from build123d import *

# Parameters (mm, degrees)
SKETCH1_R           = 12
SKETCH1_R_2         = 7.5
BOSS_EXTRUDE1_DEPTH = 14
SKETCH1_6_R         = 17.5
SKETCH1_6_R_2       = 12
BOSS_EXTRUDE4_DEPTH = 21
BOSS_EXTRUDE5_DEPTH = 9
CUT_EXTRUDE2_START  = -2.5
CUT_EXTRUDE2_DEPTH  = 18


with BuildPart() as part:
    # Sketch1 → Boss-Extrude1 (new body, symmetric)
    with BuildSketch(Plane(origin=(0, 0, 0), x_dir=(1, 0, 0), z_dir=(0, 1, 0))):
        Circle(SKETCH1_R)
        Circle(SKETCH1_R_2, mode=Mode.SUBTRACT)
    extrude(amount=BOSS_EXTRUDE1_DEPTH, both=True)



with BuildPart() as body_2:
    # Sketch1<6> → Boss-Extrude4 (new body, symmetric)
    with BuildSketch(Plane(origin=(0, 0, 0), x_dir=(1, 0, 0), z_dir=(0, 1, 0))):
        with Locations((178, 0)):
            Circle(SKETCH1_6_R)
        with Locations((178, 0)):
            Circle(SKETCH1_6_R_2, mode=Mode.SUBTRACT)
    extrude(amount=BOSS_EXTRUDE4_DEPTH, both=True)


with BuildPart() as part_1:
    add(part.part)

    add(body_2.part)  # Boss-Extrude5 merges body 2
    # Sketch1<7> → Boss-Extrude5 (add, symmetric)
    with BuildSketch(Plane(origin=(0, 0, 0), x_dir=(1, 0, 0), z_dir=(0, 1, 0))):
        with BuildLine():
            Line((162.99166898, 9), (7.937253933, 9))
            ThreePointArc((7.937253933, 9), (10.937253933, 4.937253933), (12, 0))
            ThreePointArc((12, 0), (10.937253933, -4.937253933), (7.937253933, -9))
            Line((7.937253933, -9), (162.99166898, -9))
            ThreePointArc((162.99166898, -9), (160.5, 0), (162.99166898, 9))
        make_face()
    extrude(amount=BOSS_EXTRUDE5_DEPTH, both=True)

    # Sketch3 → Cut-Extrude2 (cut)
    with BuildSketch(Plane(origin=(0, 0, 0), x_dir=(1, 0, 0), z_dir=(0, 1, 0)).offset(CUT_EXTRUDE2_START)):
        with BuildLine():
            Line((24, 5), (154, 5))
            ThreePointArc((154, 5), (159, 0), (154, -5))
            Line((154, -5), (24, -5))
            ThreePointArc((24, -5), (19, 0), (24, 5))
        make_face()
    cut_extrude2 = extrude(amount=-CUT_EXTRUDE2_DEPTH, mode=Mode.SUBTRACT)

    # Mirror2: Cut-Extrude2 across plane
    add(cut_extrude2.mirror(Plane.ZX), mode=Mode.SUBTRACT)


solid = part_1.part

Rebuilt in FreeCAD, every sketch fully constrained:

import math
import FreeCAD as App
import Part
import Sketcher
from FreeCAD import Vector

doc = App.newDocument("Part")
params = doc.addObject("Spreadsheet::Sheet", "Params")
for row, (alias, value) in enumerate([
    ("sketch1_diameter", "24 mm"),
    ("sketch1_diameter2", "15 mm"),
    ("pad1_length", "28 mm"),
    ("sketch2_diameter", "35 mm"),
    ("sketch2_diameter2", "24 mm"),
    ("pad2_length", "42 mm"),
    ("sketch3_radius", "12 mm"),
    ("sketch3_radius2", "17.5 mm"),
    ("pad3_length", "18 mm"),
    ("sketch4_radius", "5 mm"),
    ("sketch4_width", "130 mm"),
    ("pocket1_length", "18 mm"),
], start=1):
    params.set(f"A{row}", alias)
    params.set(f"B{row}", "=" + value)
    params.setAlias(f"B{row}", alias)

body = doc.addObject("PartDesign::Body", "Body")

sketch1 = body.newObject("Sketcher::SketchObject", "Sketch")
sketch1.AttachmentSupport = (doc.getObject("XZ_Plane"), [""])
sketch1.MapMode = "FlatFace"
sketch1.addGeometry(Part.Circle(Vector(0, 0, 0), Vector(0, 0, 1), 12), False)
sketch1.addGeometry(Part.Circle(Vector(0, 0, 0), Vector(0, 0, 1), 8), False)
sketch1.addConstraint(Sketcher.Constraint("Coincident", 0, 3, -1, 1))
sketch1.addConstraint(Sketcher.Constraint("Coincident", 1, 3, -1, 1))
sketch1.addConstraint(Sketcher.Constraint("Diameter", 0, 24.0))
sketch1.addConstraint(Sketcher.Constraint("Diameter", 1, 15.0))
sketch1.setExpression("Constraints[2]", "Params.sketch1_diameter")
sketch1.setExpression("Constraints[3]", "Params.sketch1_diameter2")
pad1 = body.newObject("PartDesign::Pad", "Pad")
pad1.Profile = sketch1
pad1.setExpression("Length", "Params.pad1_length")
pad1.Midplane = True
body2 = doc.addObject("PartDesign::Body", "Body001")

sketch2 = body2.newObject("Sketcher::SketchObject", "Sketch001")
sketch2.AttachmentSupport = (doc.getObject("XZ_Plane001"), [""])
sketch2.MapMode = "FlatFace"
sketch2.addGeometry(Part.Circle(Vector(178, 0, 0), Vector(0, 0, 1), 18), False)
sketch2.addGeometry(Part.Circle(Vector(178, 0, 0), Vector(0, 0, 1), 12), False)
sketch2.addConstraint(Sketcher.Constraint("Coincident", 1, 3, 0, 3))
sketch2.addConstraint(Sketcher.Constraint("PointOnObject", 0, 3, -1))
sketch2.addConstraint(Sketcher.Constraint("Diameter", 0, 35.0))
sketch2.addConstraint(Sketcher.Constraint("Diameter", 1, 24.0))
sketch2.addConstraint(Sketcher.Constraint("DistanceX", -1, 1, 0, 3, 178.0))
sketch2.setExpression("Constraints[2]", "Params.sketch2_diameter")
sketch2.setExpression("Constraints[3]", "Params.sketch2_diameter2")
pad2 = body2.newObject("PartDesign::Pad", "Pad001")
pad2.Profile = sketch2
pad2.setExpression("Length", "Params.pad2_length")
pad2.Midplane = True
body.AllowCompound = True
doc.recompute()

boolean = body.newObject("PartDesign::Boolean", "Boolean")
boolean.Type = "Fuse"
boolean.addObjects([body2])

sketch3 = body.newObject("Sketcher::SketchObject", "Sketch002")
sketch3.AttachmentSupport = (doc.getObject("XZ_Plane"), [""])
sketch3.MapMode = "FlatFace"
sketch3.addGeometry(Part.LineSegment(Vector(163, -9, 0), Vector(8, -9, 0)), False)
sketch3.addGeometry(Part.ArcOfCircle(Part.Circle(Vector(0, 0, 0), Vector(0, 0, 1), 12), math.radians(-49), math.radians(0)), False)
sketch3.addGeometry(Part.ArcOfCircle(Part.Circle(Vector(0, 0, 0), Vector(0, 0, 1), 12), math.radians(0), math.radians(49)), False)
sketch3.addGeometry(Part.LineSegment(Vector(8, 9, 0), Vector(163, 9, 0)), False)
sketch3.addGeometry(Part.ArcOfCircle(Part.Circle(Vector(178, 0, 0), Vector(0, 0, 1), 18), math.radians(149), math.radians(211)), False)
sketch3.addConstraint(Sketcher.Constraint("Coincident", 0, 2, 1, 1))
sketch3.addConstraint(Sketcher.Constraint("Tangent", 1, 2, 2, 1))
sketch3.addConstraint(Sketcher.Constraint("Coincident", 2, 2, 3, 1))
sketch3.addConstraint(Sketcher.Constraint("Coincident", 3, 2, 4, 1))
sketch3.addConstraint(Sketcher.Constraint("Coincident", 4, 2, 0, 1))
sketch3.addConstraint(Sketcher.Constraint("Horizontal", 0))
sketch3.addConstraint(Sketcher.Constraint("Horizontal", 3))
sketch3.addConstraint(Sketcher.Constraint("Coincident", 1, 3, -1, 1))
sketch3.addConstraint(Sketcher.Constraint("Equal", 1, 2))
sketch3.addConstraint(Sketcher.Constraint("Symmetric", 3, 2, 4, 2, -1))
sketch3.addConstraint(Sketcher.Constraint("PointOnObject", 1, 2, -1))
sketch3.addConstraint(Sketcher.Constraint("Radius", 1, 12.0))
sketch3.addConstraint(Sketcher.Constraint("Radius", 4, 17.5))
sketch3.addConstraint(Sketcher.Constraint("DistanceX", -1, 1, 4, 3, 178.0))
sketch3.addConstraint(Sketcher.Constraint("DistanceY", 0, 2, -1, 1, 9.0))
sketch3.setExpression("Constraints[11]", "Params.sketch3_radius")
sketch3.setExpression("Constraints[12]", "Params.sketch3_radius2")
pad3 = body.newObject("PartDesign::Pad", "Pad002")
pad3.Profile = sketch3
pad3.setExpression("Length", "Params.pad3_length")
pad3.Midplane = True

sketch4 = body.newObject("Sketcher::SketchObject", "Sketch003")
sketch4.AttachmentSupport = (doc.getObject("XZ_Plane"), [""])
sketch4.MapMode = "FlatFace"
sketch4.AttachmentOffset = App.Placement(Vector(0, 0, 2.5), App.Rotation())
sketch4.addGeometry(Part.LineSegment(Vector(154, -5, 0), Vector(24, -5, 0)), False)
sketch4.addGeometry(Part.ArcOfCircle(Part.Circle(Vector(24, 0, 0), Vector(0, 0, 1), 5), math.radians(90), math.radians(270)), False)
sketch4.addGeometry(Part.LineSegment(Vector(24, 5, 0), Vector(154, 5, 0)), False)
sketch4.addGeometry(Part.ArcOfCircle(Part.Circle(Vector(154, 0, 0), Vector(0, 0, 1), 5), math.radians(-90), math.radians(90)), False)
sketch4.addConstraint(Sketcher.Constraint("Tangent", 0, 2, 1, 2))
sketch4.addConstraint(Sketcher.Constraint("Tangent", 1, 1, 2, 1))
sketch4.addConstraint(Sketcher.Constraint("Tangent", 2, 2, 3, 2))
sketch4.addConstraint(Sketcher.Constraint("Tangent", 3, 1, 0, 1))
sketch4.addConstraint(Sketcher.Constraint("Horizontal", 0))
sketch4.addConstraint(Sketcher.Constraint("Horizontal", 2))
sketch4.addConstraint(Sketcher.Constraint("PointOnObject", 1, 3, -1))
sketch4.addConstraint(Sketcher.Constraint("Radius", 1, 5.0))
sketch4.addConstraint(Sketcher.Constraint("DistanceX", 0, 2, 0, 1, 130.0))
sketch4.addConstraint(Sketcher.Constraint("DistanceX", -1, 1, 1, 3, 24.0))
sketch4.setExpression("Constraints[7]", "Params.sketch4_radius")
sketch4.setExpression("Constraints[8]", "Params.sketch4_width")
pocket1 = body.newObject("PartDesign::Pocket", "Pocket")
pocket1.Profile = sketch4
pocket1.setExpression("Length", "Params.pocket1_length")
pocket1.Reversed = True
doc.recompute()

mirrored = body.newObject("PartDesign::Mirrored", "Mirrored")
mirrored.Originals = [pocket1]
mirrored.MirrorPlane = (doc.getObject("XZ_Plane"), [""])
body.Tip = mirrored

doc.recompute()
